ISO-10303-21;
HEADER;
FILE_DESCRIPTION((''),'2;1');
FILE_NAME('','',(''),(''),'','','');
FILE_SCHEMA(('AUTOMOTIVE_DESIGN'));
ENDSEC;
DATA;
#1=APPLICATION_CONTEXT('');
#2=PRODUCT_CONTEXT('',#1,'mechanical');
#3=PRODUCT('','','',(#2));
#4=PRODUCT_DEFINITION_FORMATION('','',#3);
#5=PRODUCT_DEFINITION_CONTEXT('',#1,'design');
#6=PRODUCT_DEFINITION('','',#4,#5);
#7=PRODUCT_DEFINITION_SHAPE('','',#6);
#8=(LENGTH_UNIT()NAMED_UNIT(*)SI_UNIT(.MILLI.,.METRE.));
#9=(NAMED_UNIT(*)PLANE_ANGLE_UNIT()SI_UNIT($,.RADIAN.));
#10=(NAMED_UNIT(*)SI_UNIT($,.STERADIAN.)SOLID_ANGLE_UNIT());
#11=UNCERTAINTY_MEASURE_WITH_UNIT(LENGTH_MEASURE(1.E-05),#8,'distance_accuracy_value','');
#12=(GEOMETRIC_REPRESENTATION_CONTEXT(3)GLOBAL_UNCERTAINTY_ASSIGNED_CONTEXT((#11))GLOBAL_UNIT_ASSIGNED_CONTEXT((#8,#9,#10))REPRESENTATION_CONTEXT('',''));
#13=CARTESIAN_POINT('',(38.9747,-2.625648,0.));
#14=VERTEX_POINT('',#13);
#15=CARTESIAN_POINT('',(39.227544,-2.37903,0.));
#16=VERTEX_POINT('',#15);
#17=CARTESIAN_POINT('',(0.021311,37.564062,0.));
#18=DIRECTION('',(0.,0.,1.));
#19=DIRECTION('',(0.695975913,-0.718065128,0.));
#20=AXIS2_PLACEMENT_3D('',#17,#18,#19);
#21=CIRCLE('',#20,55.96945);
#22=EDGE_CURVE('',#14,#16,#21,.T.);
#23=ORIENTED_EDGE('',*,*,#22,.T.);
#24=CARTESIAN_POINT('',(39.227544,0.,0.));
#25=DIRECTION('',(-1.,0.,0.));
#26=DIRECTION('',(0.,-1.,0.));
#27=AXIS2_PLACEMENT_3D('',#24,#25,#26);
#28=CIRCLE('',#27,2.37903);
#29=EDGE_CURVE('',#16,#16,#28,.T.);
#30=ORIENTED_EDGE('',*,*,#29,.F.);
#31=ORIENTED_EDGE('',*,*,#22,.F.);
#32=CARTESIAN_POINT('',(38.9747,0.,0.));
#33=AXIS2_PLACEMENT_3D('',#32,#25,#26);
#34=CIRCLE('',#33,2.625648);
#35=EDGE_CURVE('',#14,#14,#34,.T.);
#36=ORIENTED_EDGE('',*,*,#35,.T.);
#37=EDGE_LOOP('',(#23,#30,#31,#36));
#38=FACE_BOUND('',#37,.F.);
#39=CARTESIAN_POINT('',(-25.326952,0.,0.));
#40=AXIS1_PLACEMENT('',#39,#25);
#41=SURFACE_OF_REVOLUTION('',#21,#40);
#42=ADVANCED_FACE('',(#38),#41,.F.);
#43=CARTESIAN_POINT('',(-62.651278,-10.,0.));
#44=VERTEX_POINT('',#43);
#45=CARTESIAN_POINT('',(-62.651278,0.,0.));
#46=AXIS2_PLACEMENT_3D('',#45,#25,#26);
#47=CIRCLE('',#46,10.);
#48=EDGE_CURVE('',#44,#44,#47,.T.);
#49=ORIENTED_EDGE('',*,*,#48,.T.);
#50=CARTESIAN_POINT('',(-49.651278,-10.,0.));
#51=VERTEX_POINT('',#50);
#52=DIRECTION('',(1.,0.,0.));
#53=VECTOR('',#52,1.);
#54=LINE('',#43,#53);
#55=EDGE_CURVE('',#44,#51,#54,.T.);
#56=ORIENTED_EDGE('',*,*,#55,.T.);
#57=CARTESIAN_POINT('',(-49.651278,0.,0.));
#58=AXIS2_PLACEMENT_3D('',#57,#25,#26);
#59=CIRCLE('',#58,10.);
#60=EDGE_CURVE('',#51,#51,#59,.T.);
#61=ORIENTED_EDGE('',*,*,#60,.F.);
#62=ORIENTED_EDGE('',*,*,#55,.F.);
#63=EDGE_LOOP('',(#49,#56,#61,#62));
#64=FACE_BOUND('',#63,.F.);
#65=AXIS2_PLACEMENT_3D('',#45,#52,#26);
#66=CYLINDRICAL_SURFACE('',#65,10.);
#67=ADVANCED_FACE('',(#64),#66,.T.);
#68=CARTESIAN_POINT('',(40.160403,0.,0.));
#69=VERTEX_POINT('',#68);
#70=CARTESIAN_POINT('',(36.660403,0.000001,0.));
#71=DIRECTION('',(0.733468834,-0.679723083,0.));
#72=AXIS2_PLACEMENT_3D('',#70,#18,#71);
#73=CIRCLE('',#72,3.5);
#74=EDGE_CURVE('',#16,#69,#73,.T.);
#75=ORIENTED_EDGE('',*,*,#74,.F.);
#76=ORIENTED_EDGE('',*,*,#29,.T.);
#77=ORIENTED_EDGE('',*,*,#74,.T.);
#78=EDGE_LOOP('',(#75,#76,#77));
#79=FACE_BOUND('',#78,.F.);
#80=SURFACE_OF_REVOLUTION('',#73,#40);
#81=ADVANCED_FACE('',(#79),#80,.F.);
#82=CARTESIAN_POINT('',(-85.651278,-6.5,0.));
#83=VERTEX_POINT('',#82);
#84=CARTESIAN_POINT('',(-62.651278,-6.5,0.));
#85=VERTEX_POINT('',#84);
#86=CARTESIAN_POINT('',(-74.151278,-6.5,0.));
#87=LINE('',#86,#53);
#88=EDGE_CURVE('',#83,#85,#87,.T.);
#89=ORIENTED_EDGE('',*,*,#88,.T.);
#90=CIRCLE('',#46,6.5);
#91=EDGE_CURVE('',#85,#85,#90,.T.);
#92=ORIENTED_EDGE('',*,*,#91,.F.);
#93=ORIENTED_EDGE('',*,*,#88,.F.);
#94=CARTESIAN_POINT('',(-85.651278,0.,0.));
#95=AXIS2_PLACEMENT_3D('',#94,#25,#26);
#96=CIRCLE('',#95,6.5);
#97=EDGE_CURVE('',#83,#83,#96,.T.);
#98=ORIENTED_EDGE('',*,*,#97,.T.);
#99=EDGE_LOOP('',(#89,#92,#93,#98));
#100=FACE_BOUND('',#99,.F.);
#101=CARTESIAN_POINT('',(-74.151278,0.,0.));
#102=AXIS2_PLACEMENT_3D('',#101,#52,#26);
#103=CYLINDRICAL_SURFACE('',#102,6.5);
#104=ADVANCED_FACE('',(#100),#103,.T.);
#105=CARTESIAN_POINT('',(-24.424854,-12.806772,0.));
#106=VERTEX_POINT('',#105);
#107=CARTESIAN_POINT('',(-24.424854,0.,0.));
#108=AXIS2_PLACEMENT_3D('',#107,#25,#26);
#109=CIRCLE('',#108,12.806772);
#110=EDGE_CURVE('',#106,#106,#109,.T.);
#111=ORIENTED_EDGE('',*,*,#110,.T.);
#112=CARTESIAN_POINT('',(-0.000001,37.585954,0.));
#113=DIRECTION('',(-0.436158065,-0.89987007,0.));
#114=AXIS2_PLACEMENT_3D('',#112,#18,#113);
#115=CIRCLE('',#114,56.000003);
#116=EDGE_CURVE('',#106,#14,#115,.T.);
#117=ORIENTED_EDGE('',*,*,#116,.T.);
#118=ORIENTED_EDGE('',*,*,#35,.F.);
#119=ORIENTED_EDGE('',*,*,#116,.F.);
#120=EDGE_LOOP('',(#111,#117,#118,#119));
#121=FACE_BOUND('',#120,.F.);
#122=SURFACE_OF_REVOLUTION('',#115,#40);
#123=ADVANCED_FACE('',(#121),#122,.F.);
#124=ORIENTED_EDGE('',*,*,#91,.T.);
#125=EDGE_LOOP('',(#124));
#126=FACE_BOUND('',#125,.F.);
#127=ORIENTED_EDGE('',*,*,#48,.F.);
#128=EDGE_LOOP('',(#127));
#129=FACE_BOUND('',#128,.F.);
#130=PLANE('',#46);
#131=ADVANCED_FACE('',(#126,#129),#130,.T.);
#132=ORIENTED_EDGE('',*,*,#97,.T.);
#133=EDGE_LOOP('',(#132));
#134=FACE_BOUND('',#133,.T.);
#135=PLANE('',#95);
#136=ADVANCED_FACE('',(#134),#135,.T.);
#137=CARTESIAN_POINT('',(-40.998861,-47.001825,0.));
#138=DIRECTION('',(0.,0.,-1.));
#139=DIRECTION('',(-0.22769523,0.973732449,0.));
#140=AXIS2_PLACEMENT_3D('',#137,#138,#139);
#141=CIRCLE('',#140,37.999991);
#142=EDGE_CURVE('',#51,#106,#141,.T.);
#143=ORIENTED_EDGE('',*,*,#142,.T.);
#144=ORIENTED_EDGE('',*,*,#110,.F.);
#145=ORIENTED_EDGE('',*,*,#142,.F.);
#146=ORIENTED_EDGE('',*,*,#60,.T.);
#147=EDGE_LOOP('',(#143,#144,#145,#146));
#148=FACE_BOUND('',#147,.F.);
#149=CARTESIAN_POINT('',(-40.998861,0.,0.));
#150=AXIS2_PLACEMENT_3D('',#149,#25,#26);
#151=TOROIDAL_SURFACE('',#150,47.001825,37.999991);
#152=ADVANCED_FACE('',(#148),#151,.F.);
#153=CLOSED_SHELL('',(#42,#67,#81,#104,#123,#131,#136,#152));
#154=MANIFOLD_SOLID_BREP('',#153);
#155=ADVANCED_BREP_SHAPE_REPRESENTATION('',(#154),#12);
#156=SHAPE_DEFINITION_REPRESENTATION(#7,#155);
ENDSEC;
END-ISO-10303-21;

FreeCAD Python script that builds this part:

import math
import FreeCAD as App
import Part
import Sketcher
Q = App.Units.Quantity

doc = App.newDocument("Part")
body = doc.addObject("PartDesign::Body", "Body")

# Sketch on XY plane
sketch1 = doc.addObject("Sketcher::SketchObject", "Sketch")
body.addObject(sketch1)
sketch1.AttachmentSupport = (doc.XY_Plane, [""])
sketch1.MapMode = "FlatFace"
sketch1.addGeometry([
    Part.ArcOfCircle(Part.Circle(App.Vector(36.660403, 0.000001, 0), App.Vector(0, 0, 1), 3.5), math.radians(-42.822008), math.radians(-0.00001)),  # 0
    Part.LineSegment(App.Vector(40.160403, 0, 0), App.Vector(-85.651278, 0, 0)),  # 1
    Part.LineSegment(App.Vector(-85.651278, 0, 0), App.Vector(-85.651278, -6.5, 0)),  # 2
    Part.LineSegment(App.Vector(-85.651278, -6.5, 0), App.Vector(-62.651278, -6.5, 0)),  # 3
    Part.LineSegment(App.Vector(-62.651278, -6.5, 0), App.Vector(-62.651278, -10, 0)),  # 4
    Part.LineSegment(App.Vector(-62.651278, -10, 0), App.Vector(-49.651278, -10, 0)),  # 5
    Part.ArcOfCircle(Part.Circle(App.Vector(-40.998861, -47.001825, 0), App.Vector(0, 0, 1), 37.999991), math.radians(64.140986), math.radians(103.161418)),  # 6
    Part.ArcOfCircle(Part.Circle(App.Vector(-0.000001, 37.585954, 0), App.Vector(0, 0, 1), 56.000003), math.radians(-115.859006), math.radians(-45.894895)),  # 7
    Part.ArcOfCircle(Part.Circle(App.Vector(0.021311, 37.564062, 0), App.Vector(0, 0, 1), 55.96945), math.radians(-45.894964), math.radians(-45.533393)),  # 8
], False)
sketch1.addConstraint([
    Sketcher.Constraint("Coincident", 0, 2, 1, 1),
    Sketcher.Constraint("Coincident", 1, 2, 2, 1),
    Sketcher.Constraint("Coincident", 2, 2, 3, 1),
    Sketcher.Constraint("Coincident", 3, 2, 4, 1),
    Sketcher.Constraint("Coincident", 4, 2, 5, 1),
    Sketcher.Constraint("Coincident", 5, 2, 6, 2),
    Sketcher.Constraint("Coincident", 6, 1, 7, 1),
    Sketcher.Constraint("Coincident", 7, 2, 8, 1),
    Sketcher.Constraint("Coincident", 8, 2, 0, 1),
    Sketcher.Constraint("Horizontal", 1),
    Sketcher.Constraint("Vertical", 2),
    Sketcher.Constraint("Horizontal", 3),
    Sketcher.Constraint("Vertical", 4),
    Sketcher.Constraint("Horizontal", 5),
    Sketcher.Constraint("PointOnObject", 0, 3, -1),
    Sketcher.Constraint("PointOnObject", 7, 3, -2),
    Sketcher.Constraint("PointOnObject", 0, 2, -1),
    Sketcher.Constraint("Radius", 0, Q("3.5 mm")),
    Sketcher.Constraint("DistanceX", 3, 1, 3, 2, Q("23 mm")),
    Sketcher.Constraint("DistanceX", 5, 1, 5, 2, Q("13 mm")),
    Sketcher.Constraint("DistanceY", 2, 2, 2, 1, Q("6.5 mm")),
    Sketcher.Constraint("DistanceY", 4, 2, 4, 1, Q("3.5 mm")),
    Sketcher.Constraint("Radius", 6, Q("37.999991 mm")),
    Sketcher.Constraint("Radius", 8, Q("55.96945 mm")),
    Sketcher.Constraint("Radius", 7, Q("56.000003 mm")),
    Sketcher.Constraint("DistanceX", 1, 2, 1, 1, Q("125.811681 mm")),
    Sketcher.Constraint("DistanceX", -1, 1, 7, 2, Q("38.9747 mm")),
    Sketcher.Constraint("DistanceX", 6, 3, -1, 1, Q("40.998861 mm")),
    Sketcher.Constraint("DistanceX", -1, 1, 8, 3, Q("0.021311 mm")),
    Sketcher.Constraint("DistanceX", 1, 2, -1, 1, Q("85.651278 mm")),
    Sketcher.Constraint("DistanceY", 6, 1, -1, 1, Q("12.806772 mm")),
])
revolution = doc.addObject("PartDesign::Revolution", "Revolution")
body.addObject(revolution)
revolution.Profile = sketch1
revolution.ReferenceAxis = (sketch1, ["H_Axis"])
revolution.Angle = 360

doc.recompute()
